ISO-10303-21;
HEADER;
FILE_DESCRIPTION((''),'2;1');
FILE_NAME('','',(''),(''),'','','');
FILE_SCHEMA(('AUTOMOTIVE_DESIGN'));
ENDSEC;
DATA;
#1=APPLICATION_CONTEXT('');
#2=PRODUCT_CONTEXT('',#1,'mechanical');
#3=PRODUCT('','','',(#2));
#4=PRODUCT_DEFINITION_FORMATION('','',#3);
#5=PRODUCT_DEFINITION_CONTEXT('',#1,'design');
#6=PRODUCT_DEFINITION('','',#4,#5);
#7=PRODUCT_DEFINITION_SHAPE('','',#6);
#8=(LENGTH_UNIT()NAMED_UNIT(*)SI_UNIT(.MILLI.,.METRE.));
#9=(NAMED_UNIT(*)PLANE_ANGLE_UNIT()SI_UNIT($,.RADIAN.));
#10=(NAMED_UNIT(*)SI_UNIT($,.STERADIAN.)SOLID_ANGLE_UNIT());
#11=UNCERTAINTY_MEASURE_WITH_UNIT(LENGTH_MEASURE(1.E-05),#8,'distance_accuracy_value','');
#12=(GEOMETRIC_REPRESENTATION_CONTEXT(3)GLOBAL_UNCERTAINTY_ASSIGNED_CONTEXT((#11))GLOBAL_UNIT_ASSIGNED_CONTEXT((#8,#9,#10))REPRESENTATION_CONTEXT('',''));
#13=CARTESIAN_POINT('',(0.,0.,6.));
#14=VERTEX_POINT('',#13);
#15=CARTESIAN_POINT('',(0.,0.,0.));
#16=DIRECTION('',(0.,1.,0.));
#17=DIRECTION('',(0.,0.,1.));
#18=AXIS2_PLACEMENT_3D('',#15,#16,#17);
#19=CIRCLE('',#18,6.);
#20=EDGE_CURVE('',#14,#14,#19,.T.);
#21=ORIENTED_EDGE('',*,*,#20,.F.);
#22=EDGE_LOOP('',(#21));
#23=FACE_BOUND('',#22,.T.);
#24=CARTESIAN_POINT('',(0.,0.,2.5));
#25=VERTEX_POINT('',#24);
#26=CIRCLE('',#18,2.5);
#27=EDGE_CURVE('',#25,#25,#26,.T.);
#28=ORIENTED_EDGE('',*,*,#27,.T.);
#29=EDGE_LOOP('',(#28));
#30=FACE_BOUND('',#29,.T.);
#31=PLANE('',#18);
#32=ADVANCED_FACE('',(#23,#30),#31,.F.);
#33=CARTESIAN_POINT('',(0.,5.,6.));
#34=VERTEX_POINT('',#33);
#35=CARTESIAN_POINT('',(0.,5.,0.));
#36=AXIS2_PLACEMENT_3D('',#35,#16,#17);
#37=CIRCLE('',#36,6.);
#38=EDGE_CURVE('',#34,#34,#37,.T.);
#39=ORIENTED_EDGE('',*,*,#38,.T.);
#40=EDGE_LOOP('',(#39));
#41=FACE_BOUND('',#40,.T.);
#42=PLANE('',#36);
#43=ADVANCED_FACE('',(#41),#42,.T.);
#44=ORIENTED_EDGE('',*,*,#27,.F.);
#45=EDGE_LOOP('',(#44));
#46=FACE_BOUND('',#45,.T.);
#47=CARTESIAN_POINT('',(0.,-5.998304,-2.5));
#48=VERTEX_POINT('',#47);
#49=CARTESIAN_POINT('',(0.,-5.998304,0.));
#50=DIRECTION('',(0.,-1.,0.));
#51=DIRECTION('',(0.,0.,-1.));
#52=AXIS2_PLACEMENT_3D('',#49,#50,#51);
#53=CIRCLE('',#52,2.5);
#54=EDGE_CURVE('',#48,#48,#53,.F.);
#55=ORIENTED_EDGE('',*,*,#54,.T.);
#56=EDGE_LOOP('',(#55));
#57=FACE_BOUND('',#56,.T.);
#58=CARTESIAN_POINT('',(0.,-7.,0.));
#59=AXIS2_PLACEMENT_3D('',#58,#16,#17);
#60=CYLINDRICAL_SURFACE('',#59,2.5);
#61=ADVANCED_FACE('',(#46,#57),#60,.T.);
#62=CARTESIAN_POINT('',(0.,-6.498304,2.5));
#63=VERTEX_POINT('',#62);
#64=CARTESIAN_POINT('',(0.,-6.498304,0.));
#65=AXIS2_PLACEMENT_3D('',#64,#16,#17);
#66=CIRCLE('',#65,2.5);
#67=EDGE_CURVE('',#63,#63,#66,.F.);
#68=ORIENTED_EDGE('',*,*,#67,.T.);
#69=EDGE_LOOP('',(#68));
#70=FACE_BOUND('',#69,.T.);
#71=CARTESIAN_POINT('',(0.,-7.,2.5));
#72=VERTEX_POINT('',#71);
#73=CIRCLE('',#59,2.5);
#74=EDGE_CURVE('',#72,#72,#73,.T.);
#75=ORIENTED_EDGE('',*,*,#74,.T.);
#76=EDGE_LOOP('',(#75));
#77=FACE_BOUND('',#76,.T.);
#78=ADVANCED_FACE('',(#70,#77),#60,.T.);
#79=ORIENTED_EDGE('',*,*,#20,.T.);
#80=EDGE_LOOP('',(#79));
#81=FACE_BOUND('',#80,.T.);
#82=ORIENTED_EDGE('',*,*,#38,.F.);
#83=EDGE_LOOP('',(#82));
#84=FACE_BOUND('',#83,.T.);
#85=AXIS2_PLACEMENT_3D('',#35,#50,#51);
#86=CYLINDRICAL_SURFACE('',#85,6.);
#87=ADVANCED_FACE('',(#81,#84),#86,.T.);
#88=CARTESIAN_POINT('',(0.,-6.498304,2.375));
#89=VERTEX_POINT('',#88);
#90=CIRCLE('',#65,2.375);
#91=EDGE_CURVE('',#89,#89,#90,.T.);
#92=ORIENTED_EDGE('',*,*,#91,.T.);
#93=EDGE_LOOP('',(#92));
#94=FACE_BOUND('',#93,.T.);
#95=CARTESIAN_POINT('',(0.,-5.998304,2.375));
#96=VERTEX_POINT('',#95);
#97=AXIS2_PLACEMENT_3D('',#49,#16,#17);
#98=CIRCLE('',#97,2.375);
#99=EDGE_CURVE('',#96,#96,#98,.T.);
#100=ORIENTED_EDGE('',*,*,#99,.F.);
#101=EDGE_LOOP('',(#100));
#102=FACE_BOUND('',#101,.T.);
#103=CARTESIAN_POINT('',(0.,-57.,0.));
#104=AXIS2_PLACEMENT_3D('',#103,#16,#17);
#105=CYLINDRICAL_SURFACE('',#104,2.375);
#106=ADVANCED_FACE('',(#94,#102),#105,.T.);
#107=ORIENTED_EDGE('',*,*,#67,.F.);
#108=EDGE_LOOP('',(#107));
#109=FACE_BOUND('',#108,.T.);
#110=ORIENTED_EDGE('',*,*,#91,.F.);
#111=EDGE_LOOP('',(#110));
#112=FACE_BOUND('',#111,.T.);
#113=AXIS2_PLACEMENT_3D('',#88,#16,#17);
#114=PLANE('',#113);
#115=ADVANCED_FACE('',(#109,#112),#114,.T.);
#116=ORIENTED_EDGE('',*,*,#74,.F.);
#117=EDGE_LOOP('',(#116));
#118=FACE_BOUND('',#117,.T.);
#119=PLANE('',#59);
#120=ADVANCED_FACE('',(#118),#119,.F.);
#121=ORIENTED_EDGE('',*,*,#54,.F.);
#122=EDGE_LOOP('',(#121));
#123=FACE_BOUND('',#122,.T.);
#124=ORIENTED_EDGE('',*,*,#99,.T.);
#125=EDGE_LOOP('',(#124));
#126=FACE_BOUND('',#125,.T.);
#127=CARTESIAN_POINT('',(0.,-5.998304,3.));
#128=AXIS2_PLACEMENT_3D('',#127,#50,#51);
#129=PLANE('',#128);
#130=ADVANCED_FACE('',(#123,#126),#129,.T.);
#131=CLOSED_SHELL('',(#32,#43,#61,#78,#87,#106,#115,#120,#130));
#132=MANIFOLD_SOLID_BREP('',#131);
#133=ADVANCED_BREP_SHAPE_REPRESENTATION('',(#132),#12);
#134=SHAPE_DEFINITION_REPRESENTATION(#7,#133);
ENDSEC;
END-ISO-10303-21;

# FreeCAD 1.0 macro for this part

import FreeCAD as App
import Part
import Sketcher
from FreeCAD import Vector


def add_polygon(sketch, points):
    """Adds a closed chain of lines whose ends are joined by coincident constraints."""
    first, n = sketch.GeometryCount, len(points)
    for a, b in zip(points, points[1:] + points[:1]):
        sketch.addGeometry(Part.LineSegment(App.Vector(*a, 0), App.Vector(*b, 0)), False)
    for i in range(n):
        sketch.addConstraint(Sketcher.Constraint("Coincident", first + i, 2, first + (i + 1) % n, 1))

doc = App.newDocument("Part")
params = doc.addObject("Spreadsheet::Sheet", "Params")
for row, (alias, value) in enumerate([
    ("sketch1_diameter", "12 mm"),
    ("pad1_length", "5 mm"),
    ("sketch2_diameter", "5 mm"),
    ("pad2_length", "12 mm"),
    ("sketch3_width", "0.5 mm"),
    ("groove_angle", "360 deg"),
], start=1):
    params.set(f"A{row}", alias)
    params.set(f"B{row}", "=" + value)
    params.setAlias(f"B{row}", alias)

body = doc.addObject("PartDesign::Body", "Body")

# Sketch on XZ plane
sketch1 = body.newObject("Sketcher::SketchObject", "Sketch")
sketch1.AttachmentSupport = (doc.getObject("XZ_Plane"), [""])
sketch1.MapMode = "FlatFace"
sketch1.addGeometry(Part.Circle(Vector(0, 0, 0), Vector(0, 0, 1), 6), False)
sketch1.addConstraint([
    Sketcher.Constraint("Coincident", 0, 3, -1, 1),
    Sketcher.Constraint("Diameter", 0, 12.0),
])
sketch1.setExpression("Constraints[1]", "Params.sketch1_diameter")
pad1 = body.newObject("PartDesign::Pad", "Pad")
pad1.Profile = sketch1
pad1.setExpression("Length", "Params.pad1_length")
pad1.Reversed = True

# Sketch on XZ plane
sketch2 = body.newObject("Sketcher::SketchObject", "Sketch001")
sketch2.AttachmentSupport = (doc.getObject("XZ_Plane"), [""])
sketch2.MapMode = "FlatFace"
sketch2.AttachmentOffset = App.Placement(Vector(0, 0, -5), App.Rotation())
sketch2.addGeometry(Part.Circle(Vector(0, 0, 0), Vector(0, 0, 1), 2.5), False)
sketch2.addConstraint([
    Sketcher.Constraint("Coincident", 0, 3, -1, 1),
    Sketcher.Constraint("Diameter", 0, 5.0),
])
sketch2.setExpression("Constraints[1]", "Params.sketch2_diameter")
pad2 = body.newObject("PartDesign::Pad", "Pad001")
pad2.Profile = sketch2
pad2.setExpression("Length", "Params.pad2_length")

# Sketch on YZ plane
sketch3 = body.newObject("Sketcher::SketchObject", "Sketch002")
sketch3.AttachmentSupport = (doc.getObject("YZ_Plane"), [""])
sketch3.MapMode = "FlatFace"
add_polygon(sketch3, [(-6, 2.4), (-6.5, 2.4), (-6.5, 3), (-6, 3)])  # lines 0-3
sketch3.addConstraint([
    Sketcher.Constraint("Horizontal", 0),
    Sketcher.Constraint("Vertical", 1),
    Sketcher.Constraint("Horizontal", 2),
    Sketcher.Constraint("Vertical", 3),
    Sketcher.Constraint("DistanceX", 0, 2, 0, 1, 0.5),
    Sketcher.Constraint("DistanceY", -1, 1, 1, 2, 3.0),
    Sketcher.Constraint("DistanceY", 1, 1, 1, 2, 0.625),
    Sketcher.Constraint("DistanceX", 0, 2, -1, 1, 6.498304),
])
sketch3.setExpression("Constraints[8]", "Params.sketch3_width")
groove = body.newObject("PartDesign::Groove", "Groove")
groove.Profile = sketch3
groove.ReferenceAxis = (sketch3, ["H_Axis"])
groove.setExpression("Angle", "Params.groove_angle")

doc.recompute()
